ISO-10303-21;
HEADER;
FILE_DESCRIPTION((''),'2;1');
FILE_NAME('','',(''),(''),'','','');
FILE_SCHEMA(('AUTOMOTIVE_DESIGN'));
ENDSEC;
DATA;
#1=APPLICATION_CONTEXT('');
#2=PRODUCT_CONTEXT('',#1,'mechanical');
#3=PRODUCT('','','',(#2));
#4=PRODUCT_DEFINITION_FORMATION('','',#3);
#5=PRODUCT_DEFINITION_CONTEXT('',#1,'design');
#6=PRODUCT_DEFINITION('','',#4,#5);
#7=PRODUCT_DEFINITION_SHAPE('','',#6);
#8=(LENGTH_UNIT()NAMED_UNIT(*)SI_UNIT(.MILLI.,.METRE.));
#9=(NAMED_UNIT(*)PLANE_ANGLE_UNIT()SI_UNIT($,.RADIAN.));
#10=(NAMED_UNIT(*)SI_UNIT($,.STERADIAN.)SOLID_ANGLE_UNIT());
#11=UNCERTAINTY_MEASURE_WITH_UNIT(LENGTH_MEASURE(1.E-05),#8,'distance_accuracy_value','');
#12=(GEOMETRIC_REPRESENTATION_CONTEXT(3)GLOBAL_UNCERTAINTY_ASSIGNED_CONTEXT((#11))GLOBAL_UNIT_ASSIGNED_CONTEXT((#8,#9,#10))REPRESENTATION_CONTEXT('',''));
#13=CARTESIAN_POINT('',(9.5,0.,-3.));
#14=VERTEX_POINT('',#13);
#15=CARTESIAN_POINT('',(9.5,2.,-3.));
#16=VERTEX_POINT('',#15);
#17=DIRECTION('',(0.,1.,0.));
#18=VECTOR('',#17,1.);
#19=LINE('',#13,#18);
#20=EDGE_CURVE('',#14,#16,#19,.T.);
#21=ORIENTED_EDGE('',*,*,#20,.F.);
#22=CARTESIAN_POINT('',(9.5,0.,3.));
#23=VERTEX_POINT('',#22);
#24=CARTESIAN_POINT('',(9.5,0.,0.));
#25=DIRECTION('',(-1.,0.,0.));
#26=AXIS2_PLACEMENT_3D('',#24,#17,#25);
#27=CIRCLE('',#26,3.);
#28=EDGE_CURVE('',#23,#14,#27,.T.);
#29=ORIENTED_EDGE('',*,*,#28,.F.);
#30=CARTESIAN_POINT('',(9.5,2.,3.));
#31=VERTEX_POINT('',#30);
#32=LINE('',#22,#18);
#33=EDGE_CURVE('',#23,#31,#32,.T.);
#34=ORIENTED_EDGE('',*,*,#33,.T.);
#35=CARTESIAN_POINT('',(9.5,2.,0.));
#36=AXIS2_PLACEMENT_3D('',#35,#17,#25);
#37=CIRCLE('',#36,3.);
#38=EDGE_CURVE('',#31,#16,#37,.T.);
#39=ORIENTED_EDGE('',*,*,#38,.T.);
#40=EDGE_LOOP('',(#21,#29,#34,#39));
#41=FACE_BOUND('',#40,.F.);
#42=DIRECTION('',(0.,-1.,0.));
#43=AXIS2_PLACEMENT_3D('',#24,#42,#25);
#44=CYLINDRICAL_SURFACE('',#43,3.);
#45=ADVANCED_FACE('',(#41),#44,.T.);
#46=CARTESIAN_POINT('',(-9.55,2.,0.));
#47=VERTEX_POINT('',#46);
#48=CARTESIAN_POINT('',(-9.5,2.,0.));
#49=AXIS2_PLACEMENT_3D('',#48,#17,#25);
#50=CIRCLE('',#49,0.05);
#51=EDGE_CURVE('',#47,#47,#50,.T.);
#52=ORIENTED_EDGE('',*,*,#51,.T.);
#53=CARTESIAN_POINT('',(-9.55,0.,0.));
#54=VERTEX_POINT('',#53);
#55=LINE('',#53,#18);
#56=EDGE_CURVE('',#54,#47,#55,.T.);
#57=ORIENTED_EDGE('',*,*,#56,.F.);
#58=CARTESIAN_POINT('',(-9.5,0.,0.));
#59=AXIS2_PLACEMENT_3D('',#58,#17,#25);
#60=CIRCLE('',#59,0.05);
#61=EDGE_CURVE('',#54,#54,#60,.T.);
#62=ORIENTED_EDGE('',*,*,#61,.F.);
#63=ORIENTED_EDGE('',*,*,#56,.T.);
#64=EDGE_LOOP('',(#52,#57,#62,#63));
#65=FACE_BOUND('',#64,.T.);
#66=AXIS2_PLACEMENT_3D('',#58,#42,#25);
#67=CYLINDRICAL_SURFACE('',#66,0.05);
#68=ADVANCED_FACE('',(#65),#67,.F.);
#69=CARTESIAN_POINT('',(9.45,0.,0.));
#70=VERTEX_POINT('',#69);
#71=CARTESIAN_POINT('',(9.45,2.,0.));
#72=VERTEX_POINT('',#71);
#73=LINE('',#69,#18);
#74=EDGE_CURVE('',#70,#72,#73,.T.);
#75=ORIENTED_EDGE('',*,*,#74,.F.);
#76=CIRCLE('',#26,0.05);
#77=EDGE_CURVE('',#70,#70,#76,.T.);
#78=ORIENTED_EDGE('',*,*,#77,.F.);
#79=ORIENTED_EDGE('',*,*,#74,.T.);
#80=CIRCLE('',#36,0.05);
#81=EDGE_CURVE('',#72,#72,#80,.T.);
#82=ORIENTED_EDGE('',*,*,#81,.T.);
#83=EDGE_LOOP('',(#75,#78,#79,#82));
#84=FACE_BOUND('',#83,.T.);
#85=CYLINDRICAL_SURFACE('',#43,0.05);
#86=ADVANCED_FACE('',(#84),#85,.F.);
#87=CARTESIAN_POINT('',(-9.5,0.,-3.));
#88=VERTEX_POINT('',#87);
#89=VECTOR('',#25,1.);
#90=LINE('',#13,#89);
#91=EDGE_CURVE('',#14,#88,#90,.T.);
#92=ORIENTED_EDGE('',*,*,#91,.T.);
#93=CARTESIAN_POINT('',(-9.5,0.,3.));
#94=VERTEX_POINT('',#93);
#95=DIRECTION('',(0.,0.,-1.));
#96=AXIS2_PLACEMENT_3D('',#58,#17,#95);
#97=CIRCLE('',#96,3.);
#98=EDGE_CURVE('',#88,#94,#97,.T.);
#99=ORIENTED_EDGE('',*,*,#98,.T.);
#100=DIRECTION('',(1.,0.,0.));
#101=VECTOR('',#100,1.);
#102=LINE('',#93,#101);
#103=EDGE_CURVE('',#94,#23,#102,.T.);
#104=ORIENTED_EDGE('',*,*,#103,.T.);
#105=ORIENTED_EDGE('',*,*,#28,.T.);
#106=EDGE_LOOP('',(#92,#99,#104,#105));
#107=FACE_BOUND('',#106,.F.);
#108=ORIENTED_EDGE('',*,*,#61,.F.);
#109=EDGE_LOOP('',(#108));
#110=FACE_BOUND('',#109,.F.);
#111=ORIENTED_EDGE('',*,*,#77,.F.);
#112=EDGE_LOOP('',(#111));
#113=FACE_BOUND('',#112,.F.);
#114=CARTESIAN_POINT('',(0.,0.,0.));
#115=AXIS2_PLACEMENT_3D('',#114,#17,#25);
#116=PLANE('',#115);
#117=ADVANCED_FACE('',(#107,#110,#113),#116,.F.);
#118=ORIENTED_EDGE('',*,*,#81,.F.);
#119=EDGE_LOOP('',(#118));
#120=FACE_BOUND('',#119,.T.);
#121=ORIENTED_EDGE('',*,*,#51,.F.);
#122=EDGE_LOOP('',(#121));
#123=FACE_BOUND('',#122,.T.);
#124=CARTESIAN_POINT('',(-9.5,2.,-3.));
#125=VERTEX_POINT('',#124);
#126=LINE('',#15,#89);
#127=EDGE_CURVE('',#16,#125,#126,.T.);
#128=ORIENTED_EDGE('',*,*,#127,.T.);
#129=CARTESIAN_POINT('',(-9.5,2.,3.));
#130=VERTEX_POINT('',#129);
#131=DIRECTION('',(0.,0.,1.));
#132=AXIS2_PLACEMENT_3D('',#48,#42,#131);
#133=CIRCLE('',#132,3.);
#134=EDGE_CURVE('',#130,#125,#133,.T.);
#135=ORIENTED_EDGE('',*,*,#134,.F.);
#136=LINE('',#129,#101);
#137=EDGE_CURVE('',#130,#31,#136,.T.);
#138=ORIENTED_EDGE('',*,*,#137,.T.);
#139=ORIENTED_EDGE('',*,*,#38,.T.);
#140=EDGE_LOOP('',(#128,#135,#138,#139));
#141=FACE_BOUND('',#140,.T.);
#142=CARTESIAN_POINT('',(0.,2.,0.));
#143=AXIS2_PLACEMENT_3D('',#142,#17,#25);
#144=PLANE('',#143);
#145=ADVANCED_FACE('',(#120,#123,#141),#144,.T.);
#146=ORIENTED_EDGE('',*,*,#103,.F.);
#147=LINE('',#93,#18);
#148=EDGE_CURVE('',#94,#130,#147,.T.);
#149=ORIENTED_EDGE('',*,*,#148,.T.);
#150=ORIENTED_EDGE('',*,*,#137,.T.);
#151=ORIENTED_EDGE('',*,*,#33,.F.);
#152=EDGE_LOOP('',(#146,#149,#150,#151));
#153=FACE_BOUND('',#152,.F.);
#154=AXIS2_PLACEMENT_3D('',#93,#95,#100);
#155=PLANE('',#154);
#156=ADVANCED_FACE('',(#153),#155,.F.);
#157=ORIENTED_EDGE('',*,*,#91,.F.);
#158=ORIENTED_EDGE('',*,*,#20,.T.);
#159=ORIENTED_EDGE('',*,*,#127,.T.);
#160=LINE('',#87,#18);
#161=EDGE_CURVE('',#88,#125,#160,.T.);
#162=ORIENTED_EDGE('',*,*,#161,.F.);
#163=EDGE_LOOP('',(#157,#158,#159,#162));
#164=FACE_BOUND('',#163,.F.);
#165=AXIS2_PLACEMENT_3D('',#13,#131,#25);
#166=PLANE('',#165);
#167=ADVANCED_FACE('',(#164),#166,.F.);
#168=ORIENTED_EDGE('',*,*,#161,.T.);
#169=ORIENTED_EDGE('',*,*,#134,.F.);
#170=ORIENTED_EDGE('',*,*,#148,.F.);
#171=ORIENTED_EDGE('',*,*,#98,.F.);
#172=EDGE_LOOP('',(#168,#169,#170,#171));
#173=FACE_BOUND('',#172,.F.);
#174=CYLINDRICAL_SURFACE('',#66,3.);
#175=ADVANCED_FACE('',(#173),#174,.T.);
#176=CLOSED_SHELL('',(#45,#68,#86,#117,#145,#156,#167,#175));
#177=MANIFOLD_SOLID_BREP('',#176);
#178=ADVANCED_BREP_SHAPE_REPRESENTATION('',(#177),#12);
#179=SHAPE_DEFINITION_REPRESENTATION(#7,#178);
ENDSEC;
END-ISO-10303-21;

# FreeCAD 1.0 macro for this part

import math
import FreeCAD as App
import Part
import Sketcher
from FreeCAD import Vector

doc = App.newDocument("Part")
body = doc.addObject("PartDesign::Body", "Body")

# Sketch on XZ plane
sketch1 = body.newObject("Sketcher::SketchObject", "Sketch")
sketch1.AttachmentSupport = (doc.getObject("XZ_Plane"), [""])
sketch1.MapMode = "FlatFace"
sketch1.addGeometry([
    Part.LineSegment(Vector(9.5, -3, 0), Vector(-9.5, -3, 0)),  # 0
    Part.ArcOfCircle(Part.Circle(Vector(-9.5, 0, 0), Vector(0, 0, 1), 3), math.radians(90), math.radians(270)),  # 1
    Part.LineSegment(Vector(-9.5, 3, 0), Vector(9.5, 3, 0)),  # 2
    Part.ArcOfCircle(Part.Circle(Vector(9.5, 0, 0), Vector(0, 0, 1), 3), math.radians(-90), math.radians(90)),  # 3
    Part.Circle(Vector(-9.5, 0, 0), Vector(0, 0, 1), 0.05),  # 4
    Part.Circle(Vector(9.5, 0, 0), Vector(0, 0, 1), 0.05),  # 5
], False)
sketch1.addConstraint([
    Sketcher.Constraint("Tangent", 0, 2, 1, 2),
    Sketcher.Constraint("Tangent", 1, 1, 2, 1),
    Sketcher.Constraint("Tangent", 2, 2, 3, 2),
    Sketcher.Constraint("Tangent", 3, 1, 0, 1),
    Sketcher.Constraint("Horizontal", 0),
    Sketcher.Constraint("Horizontal", 2),
    Sketcher.Constraint("Coincident", 4, 3, 1, 3),
    Sketcher.Constraint("Coincident", 5, 3, 3, 3),
    Sketcher.Constraint("Equal", 4, 5),
    Sketcher.Constraint("Symmetric", 1, 3, 3, 3, -1, 1),
    Sketcher.Constraint("Radius", 1, 3.0),
    Sketcher.Constraint("Diameter", 4, 0.1),
    Sketcher.Constraint("DistanceX", 0, 2, 0, 1, 19.0),
])
pad1 = body.newObject("PartDesign::Pad", "Pad")
pad1.Profile = sketch1
pad1.Length = 2
pad1.Reversed = True

doc.recompute()
